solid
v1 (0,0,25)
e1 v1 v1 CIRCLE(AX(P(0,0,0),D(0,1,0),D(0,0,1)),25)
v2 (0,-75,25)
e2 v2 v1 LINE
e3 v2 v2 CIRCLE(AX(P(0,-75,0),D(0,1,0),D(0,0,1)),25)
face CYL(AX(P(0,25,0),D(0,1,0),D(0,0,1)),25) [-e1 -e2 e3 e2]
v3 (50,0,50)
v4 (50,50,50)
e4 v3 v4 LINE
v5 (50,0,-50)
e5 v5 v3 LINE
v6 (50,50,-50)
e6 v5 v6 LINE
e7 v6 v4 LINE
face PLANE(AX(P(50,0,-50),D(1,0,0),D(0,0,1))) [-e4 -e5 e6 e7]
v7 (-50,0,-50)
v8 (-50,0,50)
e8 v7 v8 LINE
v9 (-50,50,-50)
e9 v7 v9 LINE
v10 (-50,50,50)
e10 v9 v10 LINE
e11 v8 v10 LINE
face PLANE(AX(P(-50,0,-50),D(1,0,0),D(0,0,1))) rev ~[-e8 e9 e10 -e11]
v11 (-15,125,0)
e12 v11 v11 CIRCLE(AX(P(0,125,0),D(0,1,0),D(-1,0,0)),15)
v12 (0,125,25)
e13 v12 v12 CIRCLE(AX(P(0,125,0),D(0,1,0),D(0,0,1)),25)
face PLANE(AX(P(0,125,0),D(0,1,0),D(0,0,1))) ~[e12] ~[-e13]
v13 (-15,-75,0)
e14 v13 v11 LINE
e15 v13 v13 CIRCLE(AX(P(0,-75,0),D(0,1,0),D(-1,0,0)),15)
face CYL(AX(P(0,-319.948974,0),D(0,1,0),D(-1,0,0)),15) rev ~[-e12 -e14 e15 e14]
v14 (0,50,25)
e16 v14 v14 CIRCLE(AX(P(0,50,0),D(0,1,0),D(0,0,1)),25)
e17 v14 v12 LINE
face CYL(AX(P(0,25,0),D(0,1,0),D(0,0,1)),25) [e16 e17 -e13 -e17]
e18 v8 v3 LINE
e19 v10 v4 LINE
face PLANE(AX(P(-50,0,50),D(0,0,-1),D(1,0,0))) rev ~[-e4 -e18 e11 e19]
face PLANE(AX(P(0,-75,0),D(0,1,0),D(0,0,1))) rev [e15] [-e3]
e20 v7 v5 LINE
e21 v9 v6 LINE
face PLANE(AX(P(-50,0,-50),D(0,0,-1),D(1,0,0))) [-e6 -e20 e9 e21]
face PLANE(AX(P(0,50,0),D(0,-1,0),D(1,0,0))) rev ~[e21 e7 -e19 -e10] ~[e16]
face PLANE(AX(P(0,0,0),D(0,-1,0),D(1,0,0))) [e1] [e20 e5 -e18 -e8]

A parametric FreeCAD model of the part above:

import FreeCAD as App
import Part
import Sketcher

V = App.Vector
Q = App.Units.Quantity


def add_polygon(sketch, points):
    """Adds a closed chain of lines whose ends are joined by coincident constraints."""
    first, n = sketch.GeometryCount, len(points)
    for a, b in zip(points, points[1:] + points[:1]):
        sketch.addGeometry(Part.LineSegment(App.Vector(*a, 0), App.Vector(*b, 0)), False)
    for i in range(n):
        sketch.addConstraint(Sketcher.Constraint("Coincident", first + i, 2, first + (i + 1) % n, 1))

doc = App.newDocument("Part")
body = doc.addObject("PartDesign::Body", "Body")

sketch1 = body.newObject("Sketcher::SketchObject", "Sketch")
sketch1.AttachmentSupport = (doc.getObject("XZ_Plane"), [""])
sketch1.MapMode = "FlatFace"
add_polygon(sketch1, [(-50, 50), (-50, -50), (50, -50), (50, 50)])
sketch1.addConstraint(Sketcher.Constraint("Vertical", 0))
sketch1.addConstraint(Sketcher.Constraint("Horizontal", 1))
sketch1.addConstraint(Sketcher.Constraint("Vertical", 2))
sketch1.addConstraint(Sketcher.Constraint("Horizontal", 3))
sketch1.addConstraint(Sketcher.Constraint("Symmetric", 0, 2, 2, 2, -1, 1))
sketch1.addConstraint(Sketcher.Constraint("Equal", 3, 0))
sketch1.addConstraint(Sketcher.Constraint("DistanceX", 1, 1, 1, 2, Q("100 mm")))
pad1 = body.newObject("PartDesign::Pad", "Pad")
pad1.Profile = sketch1
pad1.Length = 50
pad1.Reversed = True

sketch2 = body.newObject("Sketcher::SketchObject", "Sketch001")
sketch2.AttachmentSupport = (doc.getObject("YZ_Plane"), [""])
sketch2.MapMode = "FlatFace"
add_polygon(sketch2, [(-75, 25), (-75, 0), (125, 0), (125, 25)])
sketch2.addConstraint(Sketcher.Constraint("Vertical", 0))
sketch2.addConstraint(Sketcher.Constraint("Horizontal", 1))
sketch2.addConstraint(Sketcher.Constraint("Vertical", 2))
sketch2.addConstraint(Sketcher.Constraint("Horizontal", 3))
sketch2.addConstraint(Sketcher.Constraint("PointOnObject", 0, 2, -1))
sketch2.addConstraint(Sketcher.Constraint("DistanceX", 1, 1, 1, 2, Q("200 mm")))
sketch2.addConstraint(Sketcher.Constraint("DistanceY", 0, 2, 0, 1, Q("25 mm")))
sketch2.addConstraint(Sketcher.Constraint("DistanceX", 0, 2, -1, 1, Q("75 mm")))
revolution = body.newObject("PartDesign::Revolution", "Revolution")
revolution.Profile = sketch2
revolution.ReferenceAxis = (sketch2, ["H_Axis"])
revolution.Angle = 360

sketch3 = body.newObject("Sketcher::SketchObject", "Sketch002")
sketch3.AttachmentSupport = (doc.getObject("XZ_Plane"), [""])
sketch3.MapMode = "FlatFace"
sketch3.AttachmentOffset = App.Placement(V(0, 0, 75), App.Rotation())
sketch3.addGeometry(Part.Circle(V(0, 0, 0), V(0, 0, 1), 15), False)
sketch3.addConstraint(Sketcher.Constraint("Coincident", 0, 3, -1, 1))
sketch3.addConstraint(Sketcher.Constraint("Diameter", 0, Q("30 mm")))
doc.recompute()
hole = body.newObject("PartDesign::Hole", "Hole")
hole.Profile = sketch3
hole.ThreadType = "None"
hole.Diameter = 30
hole.DepthType = "ThroughAll"

doc.recompute()
